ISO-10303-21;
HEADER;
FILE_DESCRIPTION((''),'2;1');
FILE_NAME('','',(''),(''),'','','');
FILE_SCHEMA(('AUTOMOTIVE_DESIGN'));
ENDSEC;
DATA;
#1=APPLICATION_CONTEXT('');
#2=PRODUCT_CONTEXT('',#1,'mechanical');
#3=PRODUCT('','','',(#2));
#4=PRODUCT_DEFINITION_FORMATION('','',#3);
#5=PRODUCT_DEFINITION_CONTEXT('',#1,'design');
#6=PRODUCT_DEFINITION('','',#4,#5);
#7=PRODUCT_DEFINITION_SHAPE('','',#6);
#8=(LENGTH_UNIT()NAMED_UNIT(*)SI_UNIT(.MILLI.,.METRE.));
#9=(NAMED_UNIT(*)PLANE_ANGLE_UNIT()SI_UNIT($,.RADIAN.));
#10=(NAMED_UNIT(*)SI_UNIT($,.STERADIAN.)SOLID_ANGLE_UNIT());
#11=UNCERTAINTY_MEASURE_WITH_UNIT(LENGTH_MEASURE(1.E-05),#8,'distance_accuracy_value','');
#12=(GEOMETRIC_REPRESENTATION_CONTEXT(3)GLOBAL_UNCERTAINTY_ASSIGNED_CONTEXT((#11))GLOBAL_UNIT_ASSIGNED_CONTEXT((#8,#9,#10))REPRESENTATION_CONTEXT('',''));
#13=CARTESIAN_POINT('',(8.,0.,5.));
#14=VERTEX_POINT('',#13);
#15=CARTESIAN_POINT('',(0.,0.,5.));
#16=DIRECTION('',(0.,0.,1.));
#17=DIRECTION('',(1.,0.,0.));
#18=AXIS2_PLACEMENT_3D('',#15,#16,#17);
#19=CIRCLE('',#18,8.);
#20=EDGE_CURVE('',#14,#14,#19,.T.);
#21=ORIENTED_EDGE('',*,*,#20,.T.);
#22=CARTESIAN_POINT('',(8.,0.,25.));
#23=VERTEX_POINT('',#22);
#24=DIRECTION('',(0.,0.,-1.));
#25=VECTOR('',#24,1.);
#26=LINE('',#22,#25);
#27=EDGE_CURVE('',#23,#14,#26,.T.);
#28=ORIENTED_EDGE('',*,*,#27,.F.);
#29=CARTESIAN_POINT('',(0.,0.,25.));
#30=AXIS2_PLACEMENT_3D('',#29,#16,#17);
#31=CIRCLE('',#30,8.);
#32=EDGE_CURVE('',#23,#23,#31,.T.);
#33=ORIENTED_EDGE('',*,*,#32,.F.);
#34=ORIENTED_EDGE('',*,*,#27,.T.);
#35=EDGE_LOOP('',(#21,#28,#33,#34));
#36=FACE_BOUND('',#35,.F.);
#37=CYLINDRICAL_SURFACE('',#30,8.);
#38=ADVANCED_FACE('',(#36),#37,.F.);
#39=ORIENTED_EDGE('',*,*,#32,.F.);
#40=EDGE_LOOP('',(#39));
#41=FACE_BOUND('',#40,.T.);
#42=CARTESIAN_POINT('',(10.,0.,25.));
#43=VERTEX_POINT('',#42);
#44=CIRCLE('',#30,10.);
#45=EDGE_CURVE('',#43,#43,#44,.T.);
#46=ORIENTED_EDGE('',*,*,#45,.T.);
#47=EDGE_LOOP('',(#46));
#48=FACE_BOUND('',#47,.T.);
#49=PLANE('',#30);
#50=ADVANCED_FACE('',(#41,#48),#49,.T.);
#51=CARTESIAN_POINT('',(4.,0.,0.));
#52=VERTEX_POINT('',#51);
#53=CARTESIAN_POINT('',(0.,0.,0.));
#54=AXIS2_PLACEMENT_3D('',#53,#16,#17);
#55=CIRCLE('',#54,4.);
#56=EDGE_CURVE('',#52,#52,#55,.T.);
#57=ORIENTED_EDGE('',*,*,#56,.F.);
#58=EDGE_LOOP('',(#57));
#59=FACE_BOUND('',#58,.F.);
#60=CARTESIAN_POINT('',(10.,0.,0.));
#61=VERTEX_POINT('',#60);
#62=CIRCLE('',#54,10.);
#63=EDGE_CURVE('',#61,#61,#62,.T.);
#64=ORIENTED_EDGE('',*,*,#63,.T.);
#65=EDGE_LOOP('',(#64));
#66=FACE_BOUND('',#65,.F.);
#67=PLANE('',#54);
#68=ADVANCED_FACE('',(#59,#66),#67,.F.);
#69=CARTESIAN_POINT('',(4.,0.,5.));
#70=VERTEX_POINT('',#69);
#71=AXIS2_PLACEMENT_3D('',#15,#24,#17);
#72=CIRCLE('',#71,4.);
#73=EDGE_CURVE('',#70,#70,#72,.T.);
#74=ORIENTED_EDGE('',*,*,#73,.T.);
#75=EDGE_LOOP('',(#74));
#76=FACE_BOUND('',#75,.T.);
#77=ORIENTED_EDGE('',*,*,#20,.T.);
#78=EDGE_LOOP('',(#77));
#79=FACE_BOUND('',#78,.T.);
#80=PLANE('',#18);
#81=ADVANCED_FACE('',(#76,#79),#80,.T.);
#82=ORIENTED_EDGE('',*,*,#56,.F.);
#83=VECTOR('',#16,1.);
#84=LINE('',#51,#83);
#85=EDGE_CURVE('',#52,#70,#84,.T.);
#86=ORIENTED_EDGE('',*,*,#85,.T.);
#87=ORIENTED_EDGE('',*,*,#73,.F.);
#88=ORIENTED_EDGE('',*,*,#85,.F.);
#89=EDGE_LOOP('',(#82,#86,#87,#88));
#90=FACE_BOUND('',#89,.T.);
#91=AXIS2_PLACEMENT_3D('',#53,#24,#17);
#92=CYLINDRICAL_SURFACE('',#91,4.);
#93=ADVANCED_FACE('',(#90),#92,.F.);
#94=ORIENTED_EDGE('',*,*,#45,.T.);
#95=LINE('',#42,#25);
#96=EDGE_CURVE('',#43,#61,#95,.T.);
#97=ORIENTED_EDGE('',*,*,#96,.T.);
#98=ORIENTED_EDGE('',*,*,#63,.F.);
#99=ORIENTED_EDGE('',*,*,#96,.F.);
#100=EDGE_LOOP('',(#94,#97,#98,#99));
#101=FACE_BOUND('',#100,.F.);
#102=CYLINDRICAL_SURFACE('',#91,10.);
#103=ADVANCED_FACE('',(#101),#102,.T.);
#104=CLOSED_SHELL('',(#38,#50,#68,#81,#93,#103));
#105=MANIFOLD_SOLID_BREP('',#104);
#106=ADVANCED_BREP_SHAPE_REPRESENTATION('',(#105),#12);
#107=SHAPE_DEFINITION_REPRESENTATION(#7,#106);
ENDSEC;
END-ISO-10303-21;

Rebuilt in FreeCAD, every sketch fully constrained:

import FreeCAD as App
import Part
import Sketcher
from FreeCAD import Vector

doc = App.newDocument("Part")
body = doc.addObject("PartDesign::Body", "Body")

sketch1 = doc.addObject("Sketcher::SketchObject", "Sketch")
body.addObject(sketch1)
sketch1.AttachmentSupport = (doc.XY_Plane, [""])
sketch1.MapMode = "FlatFace"
sketch1.addGeometry([
    Part.Circle(Vector(0, 0, 0), Vector(0, 0, 1), 10),
    Part.Circle(Vector(0, 0, 0), Vector(0, 0, 1), 4),
], False)
sketch1.addConstraint([
    Sketcher.Constraint("Coincident", 0, 3, -1, 1),
    Sketcher.Constraint("Coincident", 1, 3, -1, 1),
    Sketcher.Constraint("Diameter", 0, 20.0),
    Sketcher.Constraint("Diameter", 1, 8.0),
])
pad1 = doc.addObject("PartDesign::Pad", "Pad")
body.addObject(pad1)
pad1.Profile = sketch1
pad1.Length = 25

sketch2 = doc.addObject("Sketcher::SketchObject", "Sketch001")
body.addObject(sketch2)
sketch2.AttachmentSupport = (doc.XY_Plane, [""])
sketch2.MapMode = "FlatFace"
sketch2.AttachmentOffset = App.Placement(Vector(0, 0, 25), App.Rotation())
sketch2.addGeometry(Part.Circle(Vector(0, 0, 0), Vector(0, 0, 1), 8), False)
sketch2.addConstraint([
    Sketcher.Constraint("Coincident", 0, 3, -1, 1),
    Sketcher.Constraint("Diameter", 0, 16.0),
])
pocket1 = doc.addObject("PartDesign::Pocket", "Pocket")
body.addObject(pocket1)
pocket1.Profile = sketch2
pocket1.Length = 20

sketch3 = doc.addObject("Sketcher::SketchObject", "Sketch002")
body.addObject(sketch3)
sketch3.AttachmentSupport = (doc.XY_Plane, [""])
sketch3.MapMode = "FlatFace"
sketch3.addGeometry([
    Part.Circle(Vector(0, 0, 0), Vector(0, 0, 1), 10),
    Part.Circle(Vector(0, 0, 0), Vector(0, 0, 1), 4),
], False)
sketch3.addConstraint([
    Sketcher.Constraint("Coincident", 0, 3, -1, 1),
    Sketcher.Constraint("Coincident", 1, 3, -1, 1),
    Sketcher.Constraint("Diameter", 0, 20.0),
    Sketcher.Constraint("Diameter", 1, 8.0),
])
pad2 = doc.addObject("PartDesign::Pad", "Pad001")
body.addObject(pad2)
pad2.Profile = sketch3
pad2.Length = 5

doc.recompute()
